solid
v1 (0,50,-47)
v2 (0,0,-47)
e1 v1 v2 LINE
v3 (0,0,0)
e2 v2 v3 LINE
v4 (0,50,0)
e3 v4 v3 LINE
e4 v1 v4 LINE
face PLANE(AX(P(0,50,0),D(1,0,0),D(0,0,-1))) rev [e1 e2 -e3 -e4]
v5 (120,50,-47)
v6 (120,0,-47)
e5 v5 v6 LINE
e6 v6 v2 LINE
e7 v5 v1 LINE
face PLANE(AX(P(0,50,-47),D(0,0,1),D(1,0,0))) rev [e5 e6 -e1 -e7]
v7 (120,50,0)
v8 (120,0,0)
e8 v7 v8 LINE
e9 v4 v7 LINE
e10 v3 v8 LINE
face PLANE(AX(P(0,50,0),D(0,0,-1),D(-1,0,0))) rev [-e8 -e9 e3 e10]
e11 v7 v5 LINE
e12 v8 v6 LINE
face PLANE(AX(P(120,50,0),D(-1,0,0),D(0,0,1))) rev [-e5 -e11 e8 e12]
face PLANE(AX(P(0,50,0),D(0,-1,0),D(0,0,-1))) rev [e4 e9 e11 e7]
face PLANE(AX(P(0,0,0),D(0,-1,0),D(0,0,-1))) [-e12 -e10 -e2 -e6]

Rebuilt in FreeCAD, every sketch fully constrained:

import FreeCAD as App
import Part
import Sketcher


def add_polygon(sketch, points):
    """Adds a closed chain of lines whose ends are joined by coincident constraints."""
    first, n = sketch.GeometryCount, len(points)
    for a, b in zip(points, points[1:] + points[:1]):
        sketch.addGeometry(Part.LineSegment(App.Vector(*a, 0), App.Vector(*b, 0)), False)
    for i in range(n):
        sketch.addConstraint(Sketcher.Constraint("Coincident", first + i, 2, first + (i + 1) % n, 1))

doc = App.newDocument("Part")
params = doc.addObject("Spreadsheet::Sheet", "Params")
for row, (alias, value) in enumerate([
    ("sketch1_width", "120 mm"),
    ("sketch1_height", "47 mm"),
    ("pad1_length", "50 mm"),
], start=1):
    params.set(f"A{row}", alias)
    params.set(f"B{row}", "=" + value)
    params.setAlias(f"B{row}", alias)

body = doc.addObject("PartDesign::Body", "Body")

sketch1 = doc.addObject("Sketcher::SketchObject", "Sketch")
body.addObject(sketch1)
sketch1.AttachmentSupport = (doc.XZ_Plane, [""])
sketch1.MapMode = "FlatFace"
add_polygon(sketch1, [(0, -47), (0, 0), (120, 0), (120, -47)])
sketch1.addConstraint([
    Sketcher.Constraint("Vertical", 0),
    Sketcher.Constraint("Horizontal", 1),
    Sketcher.Constraint("Vertical", 2),
    Sketcher.Constraint("Horizontal", 3),
    Sketcher.Constraint("Coincident", 0, 2, -1, 1),
    Sketcher.Constraint("DistanceX", 1, 1, 1, 2, 120.0),
    Sketcher.Constraint("DistanceY", 0, 1, 0, 2, 47.0),
])
sketch1.setExpression("Constraints[9]", "Params.sketch1_width")
sketch1.setExpression("Constraints[10]", "Params.sketch1_height")
pad1 = doc.addObject("PartDesign::Pad", "Pad")
body.addObject(pad1)
pad1.Profile = sketch1
pad1.setExpression("Length", "Params.pad1_length")
pad1.Reversed = True

doc.recompute()
